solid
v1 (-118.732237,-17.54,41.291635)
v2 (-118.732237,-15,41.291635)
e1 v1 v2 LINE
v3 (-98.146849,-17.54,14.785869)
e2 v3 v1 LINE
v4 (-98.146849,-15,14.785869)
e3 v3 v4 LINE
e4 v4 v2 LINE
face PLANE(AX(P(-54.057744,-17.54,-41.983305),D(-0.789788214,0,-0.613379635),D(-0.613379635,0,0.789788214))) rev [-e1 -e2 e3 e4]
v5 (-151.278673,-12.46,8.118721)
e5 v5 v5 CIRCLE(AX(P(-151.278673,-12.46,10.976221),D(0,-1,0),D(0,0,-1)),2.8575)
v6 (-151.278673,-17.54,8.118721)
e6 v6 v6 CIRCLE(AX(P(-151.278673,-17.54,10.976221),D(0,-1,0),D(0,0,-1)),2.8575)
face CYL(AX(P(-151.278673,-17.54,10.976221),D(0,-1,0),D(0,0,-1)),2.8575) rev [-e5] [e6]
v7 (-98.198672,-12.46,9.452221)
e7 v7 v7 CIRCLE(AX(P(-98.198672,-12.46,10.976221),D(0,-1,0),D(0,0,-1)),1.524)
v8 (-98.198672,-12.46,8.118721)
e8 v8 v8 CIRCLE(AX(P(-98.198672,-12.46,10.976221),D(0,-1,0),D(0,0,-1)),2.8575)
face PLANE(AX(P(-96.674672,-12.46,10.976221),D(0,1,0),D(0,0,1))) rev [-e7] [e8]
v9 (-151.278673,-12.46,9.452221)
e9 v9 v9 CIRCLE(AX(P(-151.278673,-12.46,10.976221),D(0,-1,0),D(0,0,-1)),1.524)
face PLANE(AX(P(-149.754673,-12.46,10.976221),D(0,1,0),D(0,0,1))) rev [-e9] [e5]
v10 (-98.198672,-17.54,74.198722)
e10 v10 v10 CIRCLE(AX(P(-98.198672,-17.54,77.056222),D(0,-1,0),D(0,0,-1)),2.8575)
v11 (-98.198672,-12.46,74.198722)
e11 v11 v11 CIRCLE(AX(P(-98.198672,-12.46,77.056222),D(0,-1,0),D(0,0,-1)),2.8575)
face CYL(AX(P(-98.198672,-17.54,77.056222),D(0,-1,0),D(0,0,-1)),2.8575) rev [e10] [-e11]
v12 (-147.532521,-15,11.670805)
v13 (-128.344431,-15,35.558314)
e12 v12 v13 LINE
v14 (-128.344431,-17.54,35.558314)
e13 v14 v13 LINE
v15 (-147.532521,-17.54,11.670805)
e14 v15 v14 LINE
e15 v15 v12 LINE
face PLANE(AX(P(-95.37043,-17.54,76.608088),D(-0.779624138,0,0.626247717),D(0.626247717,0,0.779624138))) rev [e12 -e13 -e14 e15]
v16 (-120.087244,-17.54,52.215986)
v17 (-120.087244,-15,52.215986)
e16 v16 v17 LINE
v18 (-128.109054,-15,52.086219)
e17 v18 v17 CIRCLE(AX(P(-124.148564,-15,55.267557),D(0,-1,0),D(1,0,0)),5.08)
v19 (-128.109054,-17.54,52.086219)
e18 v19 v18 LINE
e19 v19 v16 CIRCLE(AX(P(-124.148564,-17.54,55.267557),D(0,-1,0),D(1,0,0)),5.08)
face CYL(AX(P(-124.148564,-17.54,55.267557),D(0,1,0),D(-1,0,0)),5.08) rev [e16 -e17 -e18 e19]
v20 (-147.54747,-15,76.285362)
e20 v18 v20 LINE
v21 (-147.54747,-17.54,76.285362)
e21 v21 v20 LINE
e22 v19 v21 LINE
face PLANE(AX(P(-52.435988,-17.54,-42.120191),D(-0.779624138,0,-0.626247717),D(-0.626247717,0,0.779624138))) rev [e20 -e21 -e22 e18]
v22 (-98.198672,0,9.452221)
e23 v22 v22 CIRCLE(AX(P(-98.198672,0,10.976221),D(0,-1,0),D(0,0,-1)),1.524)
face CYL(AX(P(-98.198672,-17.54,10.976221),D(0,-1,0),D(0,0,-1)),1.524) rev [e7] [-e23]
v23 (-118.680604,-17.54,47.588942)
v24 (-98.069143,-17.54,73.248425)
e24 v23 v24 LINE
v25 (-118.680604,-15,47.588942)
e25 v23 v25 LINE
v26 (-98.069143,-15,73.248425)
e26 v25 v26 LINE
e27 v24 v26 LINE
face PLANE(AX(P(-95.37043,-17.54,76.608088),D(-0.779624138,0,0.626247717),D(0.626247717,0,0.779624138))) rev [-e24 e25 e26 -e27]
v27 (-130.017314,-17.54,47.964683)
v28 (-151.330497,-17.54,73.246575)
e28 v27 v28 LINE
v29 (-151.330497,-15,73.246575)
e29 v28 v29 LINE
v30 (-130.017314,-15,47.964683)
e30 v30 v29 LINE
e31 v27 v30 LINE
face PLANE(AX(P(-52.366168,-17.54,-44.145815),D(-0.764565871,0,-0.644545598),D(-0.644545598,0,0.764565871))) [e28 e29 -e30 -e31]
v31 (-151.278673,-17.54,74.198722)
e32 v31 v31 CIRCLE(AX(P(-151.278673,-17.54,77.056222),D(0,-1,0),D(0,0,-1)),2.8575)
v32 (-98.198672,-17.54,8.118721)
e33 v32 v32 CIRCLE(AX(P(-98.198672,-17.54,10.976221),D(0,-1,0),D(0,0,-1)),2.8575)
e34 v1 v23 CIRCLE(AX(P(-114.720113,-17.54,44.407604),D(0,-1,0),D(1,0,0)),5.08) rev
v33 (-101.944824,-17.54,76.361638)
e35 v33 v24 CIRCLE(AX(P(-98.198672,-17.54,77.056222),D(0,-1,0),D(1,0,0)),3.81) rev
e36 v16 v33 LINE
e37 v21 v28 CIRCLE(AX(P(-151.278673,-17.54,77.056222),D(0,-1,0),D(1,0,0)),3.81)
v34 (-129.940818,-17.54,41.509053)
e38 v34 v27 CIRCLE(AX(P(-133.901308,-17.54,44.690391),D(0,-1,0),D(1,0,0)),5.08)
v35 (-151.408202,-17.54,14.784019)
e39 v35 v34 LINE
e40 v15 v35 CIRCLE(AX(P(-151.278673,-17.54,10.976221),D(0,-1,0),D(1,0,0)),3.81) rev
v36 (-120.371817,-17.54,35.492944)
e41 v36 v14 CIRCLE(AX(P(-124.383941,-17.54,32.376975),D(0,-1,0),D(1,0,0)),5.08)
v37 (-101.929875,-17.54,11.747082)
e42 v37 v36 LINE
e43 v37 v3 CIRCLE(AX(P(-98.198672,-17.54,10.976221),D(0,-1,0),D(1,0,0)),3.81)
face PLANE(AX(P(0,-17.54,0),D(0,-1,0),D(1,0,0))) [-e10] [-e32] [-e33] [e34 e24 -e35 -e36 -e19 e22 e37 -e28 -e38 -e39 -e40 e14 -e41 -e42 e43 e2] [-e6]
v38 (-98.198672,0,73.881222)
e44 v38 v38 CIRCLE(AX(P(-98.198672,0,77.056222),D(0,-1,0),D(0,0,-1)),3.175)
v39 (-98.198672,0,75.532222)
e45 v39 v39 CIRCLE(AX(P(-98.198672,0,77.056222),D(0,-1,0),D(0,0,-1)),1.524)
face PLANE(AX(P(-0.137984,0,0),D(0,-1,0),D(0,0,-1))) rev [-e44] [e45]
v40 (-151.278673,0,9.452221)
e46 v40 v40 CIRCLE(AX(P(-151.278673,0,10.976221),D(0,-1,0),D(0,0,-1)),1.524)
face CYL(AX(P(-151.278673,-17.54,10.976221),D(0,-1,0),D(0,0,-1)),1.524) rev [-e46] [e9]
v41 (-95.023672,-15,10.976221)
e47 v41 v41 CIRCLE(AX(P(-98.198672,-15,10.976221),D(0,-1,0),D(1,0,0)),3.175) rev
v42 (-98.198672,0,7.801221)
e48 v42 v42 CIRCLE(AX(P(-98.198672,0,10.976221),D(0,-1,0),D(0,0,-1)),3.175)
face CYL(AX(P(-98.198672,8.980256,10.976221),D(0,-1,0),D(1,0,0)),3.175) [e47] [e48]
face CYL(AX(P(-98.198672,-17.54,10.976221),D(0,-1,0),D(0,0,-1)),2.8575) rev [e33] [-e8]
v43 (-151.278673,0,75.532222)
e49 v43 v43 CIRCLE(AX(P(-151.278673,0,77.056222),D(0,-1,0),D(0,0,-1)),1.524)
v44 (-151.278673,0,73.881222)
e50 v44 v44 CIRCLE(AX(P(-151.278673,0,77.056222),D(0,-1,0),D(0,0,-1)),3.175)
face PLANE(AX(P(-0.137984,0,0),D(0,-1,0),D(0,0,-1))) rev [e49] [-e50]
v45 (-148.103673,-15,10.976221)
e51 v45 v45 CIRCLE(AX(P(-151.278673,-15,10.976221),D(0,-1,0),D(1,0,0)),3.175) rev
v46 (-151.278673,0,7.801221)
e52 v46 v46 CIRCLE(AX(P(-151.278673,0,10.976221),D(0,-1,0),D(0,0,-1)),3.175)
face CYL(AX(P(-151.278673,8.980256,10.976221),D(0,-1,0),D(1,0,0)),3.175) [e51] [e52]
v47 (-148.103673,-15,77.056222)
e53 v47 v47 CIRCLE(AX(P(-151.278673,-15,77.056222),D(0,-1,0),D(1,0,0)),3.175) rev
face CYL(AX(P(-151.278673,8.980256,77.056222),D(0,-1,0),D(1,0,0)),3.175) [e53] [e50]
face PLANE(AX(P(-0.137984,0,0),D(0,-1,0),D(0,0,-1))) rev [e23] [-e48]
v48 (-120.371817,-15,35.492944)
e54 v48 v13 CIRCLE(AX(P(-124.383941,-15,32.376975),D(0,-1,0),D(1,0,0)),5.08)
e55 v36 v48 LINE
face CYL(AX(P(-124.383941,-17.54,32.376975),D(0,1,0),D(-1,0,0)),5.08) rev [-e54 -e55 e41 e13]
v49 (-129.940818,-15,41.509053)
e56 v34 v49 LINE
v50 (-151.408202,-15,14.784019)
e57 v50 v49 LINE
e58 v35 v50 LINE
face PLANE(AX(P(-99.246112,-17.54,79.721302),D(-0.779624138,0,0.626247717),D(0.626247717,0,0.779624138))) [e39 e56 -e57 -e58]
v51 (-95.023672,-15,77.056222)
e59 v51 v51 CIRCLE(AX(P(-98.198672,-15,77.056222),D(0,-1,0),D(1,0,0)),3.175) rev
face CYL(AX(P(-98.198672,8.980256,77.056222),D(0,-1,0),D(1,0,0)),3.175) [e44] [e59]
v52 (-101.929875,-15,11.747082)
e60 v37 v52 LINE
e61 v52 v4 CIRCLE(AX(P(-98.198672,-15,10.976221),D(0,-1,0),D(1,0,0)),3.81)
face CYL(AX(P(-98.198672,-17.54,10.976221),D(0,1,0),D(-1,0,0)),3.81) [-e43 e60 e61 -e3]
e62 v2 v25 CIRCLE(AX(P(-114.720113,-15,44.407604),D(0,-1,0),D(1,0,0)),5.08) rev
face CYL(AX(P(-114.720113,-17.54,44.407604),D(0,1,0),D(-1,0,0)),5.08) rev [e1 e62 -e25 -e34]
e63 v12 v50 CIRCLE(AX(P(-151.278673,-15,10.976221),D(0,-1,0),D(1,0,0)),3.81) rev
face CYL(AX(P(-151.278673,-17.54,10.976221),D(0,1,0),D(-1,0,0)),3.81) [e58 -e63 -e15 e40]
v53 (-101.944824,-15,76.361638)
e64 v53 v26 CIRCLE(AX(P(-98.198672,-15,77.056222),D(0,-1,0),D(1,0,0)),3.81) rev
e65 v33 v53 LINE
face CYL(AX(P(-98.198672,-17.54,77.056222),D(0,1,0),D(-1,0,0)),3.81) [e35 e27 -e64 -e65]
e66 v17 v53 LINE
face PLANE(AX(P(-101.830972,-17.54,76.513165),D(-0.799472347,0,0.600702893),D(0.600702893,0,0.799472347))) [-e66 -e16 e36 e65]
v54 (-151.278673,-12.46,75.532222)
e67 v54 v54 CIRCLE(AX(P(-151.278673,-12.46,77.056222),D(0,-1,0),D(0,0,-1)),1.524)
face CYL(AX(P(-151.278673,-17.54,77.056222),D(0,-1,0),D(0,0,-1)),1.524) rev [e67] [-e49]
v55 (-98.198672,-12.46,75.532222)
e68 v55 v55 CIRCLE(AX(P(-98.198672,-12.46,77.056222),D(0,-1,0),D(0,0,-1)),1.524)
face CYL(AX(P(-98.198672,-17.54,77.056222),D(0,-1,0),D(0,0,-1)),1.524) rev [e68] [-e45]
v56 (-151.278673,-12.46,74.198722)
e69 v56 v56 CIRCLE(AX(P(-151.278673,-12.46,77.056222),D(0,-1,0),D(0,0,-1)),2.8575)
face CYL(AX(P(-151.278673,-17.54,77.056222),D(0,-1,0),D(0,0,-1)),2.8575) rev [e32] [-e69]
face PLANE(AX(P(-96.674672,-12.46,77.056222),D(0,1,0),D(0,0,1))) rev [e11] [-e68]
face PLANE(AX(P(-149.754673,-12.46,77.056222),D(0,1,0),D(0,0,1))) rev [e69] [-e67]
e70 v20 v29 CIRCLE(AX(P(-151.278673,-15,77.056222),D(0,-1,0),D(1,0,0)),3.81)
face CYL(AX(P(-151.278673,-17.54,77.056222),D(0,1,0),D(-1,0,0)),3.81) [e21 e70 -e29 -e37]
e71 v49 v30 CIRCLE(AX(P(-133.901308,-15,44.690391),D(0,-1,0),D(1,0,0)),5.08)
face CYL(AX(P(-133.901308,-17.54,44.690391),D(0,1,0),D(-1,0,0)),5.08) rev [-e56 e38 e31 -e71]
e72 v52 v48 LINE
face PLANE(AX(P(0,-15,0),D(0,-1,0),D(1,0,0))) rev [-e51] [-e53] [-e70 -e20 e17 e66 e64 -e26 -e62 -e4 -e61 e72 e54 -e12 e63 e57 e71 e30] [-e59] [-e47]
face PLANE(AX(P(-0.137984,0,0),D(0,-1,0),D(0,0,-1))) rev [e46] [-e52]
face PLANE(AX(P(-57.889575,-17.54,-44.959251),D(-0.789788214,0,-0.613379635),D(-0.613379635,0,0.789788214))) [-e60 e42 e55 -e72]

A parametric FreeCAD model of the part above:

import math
import FreeCAD as App
import Part
import Sketcher
Q = App.Units.Quantity

doc = App.newDocument("Part")
params = doc.addObject("Spreadsheet::Sheet", "Params")
for row, (alias, value) in enumerate([
    ("sketch1_radius", "0.2 in"),
    ("sketch1_radius2", "0.2 in"),
    ("sketch1_radius3", "0.2 in"),
    ("sketch1_radius4", "0.2 in"),
    ("sketch1_radius5", "0.15 in"),
    ("pad1_length", "0.1 in"),
    ("sketch2_diameter", "0.25 in"),
    ("pad2_length", "15 mm"),
    ("sketch3_diameter", "0.12 in"),
    ("hole_diameter", "0.12 in"),
    ("hole_cbore_diameter", "0.225 in"),
    ("hole_cbore_depth", "0.2 in"),
    ("sketch4_diameter", "0.12 in"),
    ("hole2_diameter", "0.12 in"),
    ("hole2_cbore_diameter", "0.225 in"),
    ("hole2_cbore_depth", "0.2 in"),
], start=1):
    params.set(f"A{row}", alias)
    params.set(f"B{row}", "=" + value)
    params.setAlias(f"B{row}", alias)

body = doc.addObject("PartDesign::Body", "Body")

sketch1 = body.newObject("Sketcher::SketchObject", "Sketch")
sketch1.AttachmentSupport = (doc.getObject("XZ_Plane"), [""])
sketch1.MapMode = "FlatFace"
sketch1.AttachmentOffset = App.Placement(App.Vector(0, 0, 15), App.Rotation())
sketch1.addGeometry(Part.ArcOfCircle(Part.Circle(App.Vector(-114.720113, 44.407604, 0), App.Vector(0, 0, 1), 5.08), math.radians(141.226175), math.radians(217.834276)), False)
sketch1.addGeometry(Part.LineSegment(App.Vector(-118.680604, 47.588942, 0), App.Vector(-98.069143, 73.248425, 0)), False)
sketch1.addGeometry(Part.ArcOfCircle(Part.Circle(App.Vector(-98.198672, 77.056222, 0), App.Vector(0, 0, 1), 3.81), math.radians(-88.051724), math.radians(190.504073)), False)
sketch1.addGeometry(Part.LineSegment(App.Vector(-101.944824, 76.361638, 0), App.Vector(-120.087244, 52.215986, 0)), False)
sketch1.addGeometry(Part.ArcOfCircle(Part.Circle(App.Vector(-124.148564, 55.267557, 0), App.Vector(0, 0, 1), 5.08), math.radians(-141.226175), math.radians(-36.920255)), False)
sketch1.addGeometry(Part.LineSegment(App.Vector(-128.109054, 52.086219, 0), App.Vector(-147.54747, 76.285362, 0)), False)
sketch1.addGeometry(Part.ArcOfCircle(Part.Circle(App.Vector(-151.278673, 77.056222, 0), App.Vector(0, 0, 1), 3.81), math.radians(-11.672987), math.radians(269.220638)), False)
sketch1.addGeometry(Part.LineSegment(App.Vector(-151.330497, 73.246575, 0), App.Vector(-130.017314, 47.964683, 0)), False)
sketch1.addGeometry(Part.ArcOfCircle(Part.Circle(App.Vector(-133.901308, 44.690391, 0), App.Vector(0, 0, 1), 5.08), math.radians(-38.773825), math.radians(40.131615)), False)
sketch1.addGeometry(Part.LineSegment(App.Vector(-129.940818, 41.509053, 0), App.Vector(-151.408202, 14.784019, 0)), False)
sketch1.addGeometry(Part.ArcOfCircle(Part.Circle(App.Vector(-151.278673, 10.976221, 0), App.Vector(0, 0, 1), 3.81), math.radians(91.948276), math.radians(370.504073)), False)
sketch1.addGeometry(Part.LineSegment(App.Vector(-147.532521, 11.670805, 0), App.Vector(-128.344431, 35.558314, 0)), False)
sketch1.addGeometry(Part.ArcOfCircle(Part.Circle(App.Vector(-124.383941, 32.376975, 0), App.Vector(0, 0, 1), 5.08), math.radians(37.834276), math.radians(141.226175)), False)
sketch1.addGeometry(Part.LineSegment(App.Vector(-120.371817, 35.492944, 0), App.Vector(-101.929875, 11.747082, 0)), False)
sketch1.addGeometry(Part.ArcOfCircle(Part.Circle(App.Vector(-98.198672, 10.976221, 0), App.Vector(0, 0, 1), 3.81), math.radians(168.327013), math.radians(449.220638)), False)
sketch1.addGeometry(Part.LineSegment(App.Vector(-98.146849, 14.785869, 0), App.Vector(-118.732237, 41.291635, 0)), False)
sketch1.addConstraint(Sketcher.Constraint("Coincident", 0, 1, 1, 1))
sketch1.addConstraint(Sketcher.Constraint("Coincident", 1, 2, 2, 1))
sketch1.addConstraint(Sketcher.Constraint("Coincident", 2, 2, 3, 1))
sketch1.addConstraint(Sketcher.Constraint("Coincident", 3, 2, 4, 2))
sketch1.addConstraint(Sketcher.Constraint("Coincident", 4, 1, 5, 1))
sketch1.addConstraint(Sketcher.Constraint("Coincident", 5, 2, 6, 1))
sketch1.addConstraint(Sketcher.Constraint("Coincident", 6, 2, 7, 1))
sketch1.addConstraint(Sketcher.Constraint("Coincident", 7, 2, 8, 2))
sketch1.addConstraint(Sketcher.Constraint("Coincident", 8, 1, 9, 1))
sketch1.addConstraint(Sketcher.Constraint("Coincident", 9, 2, 10, 1))
sketch1.addConstraint(Sketcher.Constraint("Coincident", 10, 2, 11, 1))
sketch1.addConstraint(Sketcher.Constraint("Coincident", 11, 2, 12, 2))
sketch1.addConstraint(Sketcher.Constraint("Coincident", 12, 1, 13, 1))
sketch1.addConstraint(Sketcher.Constraint("Coincident", 13, 2, 14, 1))
sketch1.addConstraint(Sketcher.Constraint("Coincident", 14, 2, 15, 1))
sketch1.addConstraint(Sketcher.Constraint("Coincident", 15, 2, 0, 2))
sketch1.addConstraint(Sketcher.Constraint("Radius", 0, Q("0.2 in")))
sketch1.addConstraint(Sketcher.Constraint("Radius", 4, Q("0.2 in")))
sketch1.addConstraint(Sketcher.Constraint("Radius", 8, Q("0.2 in")))
sketch1.addConstraint(Sketcher.Constraint("Radius", 12, Q("0.2 in")))
sketch1.addConstraint(Sketcher.Constraint("Radius", 2, Q("0.15 in")))
sketch1.addConstraint(Sketcher.Constraint("Radius", 6, Q("0.15 in")))
sketch1.addConstraint(Sketcher.Constraint("Radius", 10, Q("0.15 in")))
sketch1.addConstraint(Sketcher.Constraint("Radius", 14, Q("0.15 in")))
sketch1.addConstraint(Sketcher.Constraint("Distance", 5, Q("31.039499 mm")))
sketch1.addConstraint(Sketcher.Constraint("Distance", 15, Q("33.5606 mm")))
sketch1.addConstraint(Sketcher.Constraint("DistanceX", 6, 3, 2, 3, Q("53.08 mm")))
sketch1.addConstraint(Sketcher.Constraint("DistanceY", 10, 3, 6, 3, Q("66.080001 mm")))
sketch1.addConstraint(Sketcher.Constraint("DistanceX", 10, 3, 2, 3, Q("53.08 mm")))
sketch1.addConstraint(Sketcher.Constraint("DistanceY", 10, 3, 2, 3, Q("66.080001 mm")))
sketch1.addConstraint(Sketcher.Constraint("DistanceX", 10, 3, 14, 3, Q("53.08 mm")))
sketch1.addConstraint(Sketcher.Constraint("DistanceX", 8, 1, 12, 1, Q("9.569001 mm")))
sketch1.addConstraint(Sketcher.Constraint("DistanceY", 12, 1, 0, 1, Q("12.095998 mm")))
sketch1.addConstraint(Sketcher.Constraint("Distance", 7, Q("33.06699 mm")))
sketch1.addConstraint(Sketcher.Constraint("DistanceX", 8, 3, -1, 1, Q("133.901308 mm")))
sketch1.addConstraint(Sketcher.Constraint("DistanceY", -1, 1, 8, 3, Q("44.690391 mm")))
sketch1.addConstraint(Sketcher.Constraint("DistanceY", -1, 1, 10, 3, Q("10.976221 mm")))
sketch1.addConstraint(Sketcher.Constraint("DistanceX", 12, 3, -1, 1, Q("124.383941 mm")))
sketch1.addConstraint(Sketcher.Constraint("DistanceY", -1, 1, 14, 3, Q("10.976221 mm")))
sketch1.addConstraint(Sketcher.Constraint("DistanceY", -1, 1, 2, 2, Q("76.361638 mm")))
sketch1.addConstraint(Sketcher.Constraint("DistanceY", -1, 1, 4, 1, Q("52.086219 mm")))
sketch1.addConstraint(Sketcher.Constraint("DistanceX", 5, 2, -1, 1, Q("147.54747 mm")))
sketch1.addConstraint(Sketcher.Constraint("DistanceY", -1, 1, 5, 2, Q("76.285362 mm")))
sketch1.addConstraint(Sketcher.Constraint("DistanceY", -1, 1, 9, 2, Q("14.784019 mm")))
sketch1.addConstraint(Sketcher.Constraint("DistanceX", 10, 2, -1, 1, Q("147.532521 mm")))
sketch1.addConstraint(Sketcher.Constraint("DistanceX", 11, 2, -1, 1, Q("128.344431 mm")))
sketch1.addConstraint(Sketcher.Constraint("DistanceX", 14, 2, -1, 1, Q("98.146849 mm")))
sketch1.addConstraint(Sketcher.Constraint("DistanceX", 0, 3, 2, 3, Q("16.521441 mm")))
sketch1.addConstraint(Sketcher.Constraint("DistanceY", 0, 3, 2, 3, Q("32.648619 mm")))
sketch1.addConstraint(Sketcher.Constraint("DistanceX", 4, 3, 0, 3, Q("9.428451 mm")))
sketch1.addConstraint(Sketcher.Constraint("DistanceY", 12, 3, 0, 3, Q("12.030628 mm")))
sketch1.addConstraint(Sketcher.Constraint("DistanceX", 0, 1, 0, 3, Q("3.960491 mm")))
sketch1.addConstraint(Sketcher.Constraint("DistanceX", 2, 3, 1, 2, Q("0.12953 mm")))
sketch1.addConstraint(Sketcher.Constraint("DistanceX", 3, 2, 0, 1, Q("1.406641 mm")))
sketch1.addConstraint(Sketcher.Constraint("DistanceX", 6, 2, 8, 3, Q("17.429188 mm")))
sketch1.addConstraint(Sketcher.Constraint("DistanceY", 14, 3, 13, 2, Q("0.770861 mm")))
sketch1.setExpression("Constraints[16]", "Params.sketch1_radius")
sketch1.setExpression("Constraints[17]", "Params.sketch1_radius2")
sketch1.setExpression("Constraints[18]", "Params.sketch1_radius3")
sketch1.setExpression("Constraints[19]", "Params.sketch1_radius4")
sketch1.setExpression("Constraints[20]", "Params.sketch1_radius5")
pad1 = body.newObject("PartDesign::Pad", "Pad")
pad1.Profile = sketch1
pad1.setExpression("Length", "Params.pad1_length")

sketch2 = body.newObject("Sketcher::SketchObject", "Sketch001")
sketch2.AttachmentSupport = (doc.getObject("XZ_Plane"), [""])
sketch2.MapMode = "FlatFace"
sketch2.AttachmentOffset = App.Placement(App.Vector(0, 0, 15), App.Rotation())
sketch2.addGeometry(Part.Circle(App.Vector(-98.198672, 10.976221, 0), App.Vector(0, 0, 1), 3.175), False)
sketch2.addGeometry(Part.Circle(App.Vector(-151.278673, 10.976221, 0), App.Vector(0, 0, 1), 3.175), False)
sketch2.addGeometry(Part.Circle(App.Vector(-151.278673, 77.056222, 0), App.Vector(0, 0, 1), 3.175), False)
sketch2.addGeometry(Part.Circle(App.Vector(-98.198672, 77.056222, 0), App.Vector(0, 0, 1), 3.175), False)
sketch2.addConstraint(Sketcher.Constraint("Equal", 0, 1))
sketch2.addConstraint(Sketcher.Constraint("Equal", 1, 2))
sketch2.addConstraint(Sketcher.Constraint("Equal", 2, 3))
sketch2.addConstraint(Sketcher.Constraint("Horizontal", 0, 3, 1, 3))
sketch2.addConstraint(Sketcher.Constraint("Horizontal", 2, 3, 3, 3))
sketch2.addConstraint(Sketcher.Constraint("Vertical", 1, 3, 2, 3))
sketch2.addConstraint(Sketcher.Constraint("Vertical", 0, 3, 3, 3))
sketch2.addConstraint(Sketcher.Constraint("Diameter", 0, Q("0.25 in")))
sketch2.addConstraint(Sketcher.Constraint("DistanceX", 1, 3, 0, 3, Q("53.08 mm")))
sketch2.addConstraint(Sketcher.Constraint("DistanceY", 1, 3, 2, 3, Q("66.080001 mm")))
sketch2.addConstraint(Sketcher.Constraint("DistanceY", -1, 1, 0, 3, Q("10.976221 mm")))
sketch2.addConstraint(Sketcher.Constraint("DistanceX", 0, 3, -1, 1, Q("98.198672 mm")))
sketch2.setExpression("Constraints[7]", "Params.sketch2_diameter")
pad2 = body.newObject("PartDesign::Pad", "Pad001")
pad2.Profile = sketch2
pad2.setExpression("Length", "Params.pad2_length")
pad2.Reversed = True

sketch3 = body.newObject("Sketcher::SketchObject", "Sketch002")
sketch3.AttachmentSupport = (doc.getObject("XZ_Plane"), [""])
sketch3.MapMode = "FlatFace"
sketch3.AttachmentOffset = App.Placement(App.Vector(0, 0, 17.54), App.Rotation())
sketch3.addGeometry(Part.Circle(App.Vector(-151.278673, 10.976221, 0), App.Vector(0, 0, 1), 1.524), False)
sketch3.addConstraint(Sketcher.Constraint("Diameter", 0, Q("0.12 in")))
sketch3.addConstraint(Sketcher.Constraint("DistanceY", -1, 1, 0, 3, Q("10.976221 mm")))
sketch3.addConstraint(Sketcher.Constraint("DistanceX", 0, 3, -1, 1, Q("151.278673 mm")))
sketch3.setExpression("Constraints[0]", "Params.sketch3_diameter")
doc.recompute()
hole = body.newObject("PartDesign::Hole", "Hole")
hole.Profile = sketch3
hole.ThreadType = "None"
hole.setExpression("Diameter", "Params.hole_diameter")
hole.DepthType = "ThroughAll"
hole.HoleCutType = "Counterbore"
hole.setExpression("HoleCutDiameter", "Params.hole_cbore_diameter")
hole.setExpression("HoleCutDepth", "Params.hole_cbore_depth")

sketch4 = body.newObject("Sketcher::SketchObject", "Sketch003")
sketch4.AttachmentSupport = (doc.getObject("XZ_Plane"), [""])
sketch4.MapMode = "FlatFace"
sketch4.AttachmentOffset = App.Placement(App.Vector(0, 0, 17.54), App.Rotation())
sketch4.addGeometry(Part.Circle(App.Vector(-98.198672, 10.976221, 0), App.Vector(0, 0, 1), 1.524), False)
sketch4.addGeometry(Part.Circle(App.Vector(-98.198672, 77.056222, 0), App.Vector(0, 0, 1), 1.524), False)
sketch4.addGeometry(Part.Circle(App.Vector(-151.278673, 77.056222, 0), App.Vector(0, 0, 1), 1.524), False)
sketch4.addConstraint(Sketcher.Constraint("Equal", 0, 1))
sketch4.addConstraint(Sketcher.Constraint("Equal", 1, 2))
sketch4.addConstraint(Sketcher.Constraint("Horizontal", 1, 3, 2, 3))
sketch4.addConstraint(Sketcher.Constraint("Vertical", 0, 3, 1, 3))
sketch4.addConstraint(Sketcher.Constraint("Diameter", 0, Q("0.12 in")))
sketch4.addConstraint(Sketcher.Constraint("DistanceY", 0, 3, 1, 3, Q("66.080001 mm")))
sketch4.addConstraint(Sketcher.Constraint("DistanceX", 2, 3, 1, 3, Q("53.08 mm")))
sketch4.addConstraint(Sketcher.Constraint("DistanceY", -1, 1, 0, 3, Q("10.976221 mm")))
sketch4.addConstraint(Sketcher.Constraint("DistanceX", 0, 3, -1, 1, Q("98.198672 mm")))
sketch4.setExpression("Constraints[4]", "Params.sketch4_diameter")
doc.recompute()
hole2 = body.newObject("PartDesign::Hole", "Hole001")
hole2.Profile = sketch4
hole2.ThreadType = "None"
hole2.setExpression("Diameter", "Params.hole2_diameter")
hole2.DepthType = "ThroughAll"
hole2.HoleCutType = "Counterbore"
hole2.setExpression("HoleCutDiameter", "Params.hole2_cbore_diameter")
hole2.setExpression("HoleCutDepth", "Params.hole2_cbore_depth")

doc.recompute()
